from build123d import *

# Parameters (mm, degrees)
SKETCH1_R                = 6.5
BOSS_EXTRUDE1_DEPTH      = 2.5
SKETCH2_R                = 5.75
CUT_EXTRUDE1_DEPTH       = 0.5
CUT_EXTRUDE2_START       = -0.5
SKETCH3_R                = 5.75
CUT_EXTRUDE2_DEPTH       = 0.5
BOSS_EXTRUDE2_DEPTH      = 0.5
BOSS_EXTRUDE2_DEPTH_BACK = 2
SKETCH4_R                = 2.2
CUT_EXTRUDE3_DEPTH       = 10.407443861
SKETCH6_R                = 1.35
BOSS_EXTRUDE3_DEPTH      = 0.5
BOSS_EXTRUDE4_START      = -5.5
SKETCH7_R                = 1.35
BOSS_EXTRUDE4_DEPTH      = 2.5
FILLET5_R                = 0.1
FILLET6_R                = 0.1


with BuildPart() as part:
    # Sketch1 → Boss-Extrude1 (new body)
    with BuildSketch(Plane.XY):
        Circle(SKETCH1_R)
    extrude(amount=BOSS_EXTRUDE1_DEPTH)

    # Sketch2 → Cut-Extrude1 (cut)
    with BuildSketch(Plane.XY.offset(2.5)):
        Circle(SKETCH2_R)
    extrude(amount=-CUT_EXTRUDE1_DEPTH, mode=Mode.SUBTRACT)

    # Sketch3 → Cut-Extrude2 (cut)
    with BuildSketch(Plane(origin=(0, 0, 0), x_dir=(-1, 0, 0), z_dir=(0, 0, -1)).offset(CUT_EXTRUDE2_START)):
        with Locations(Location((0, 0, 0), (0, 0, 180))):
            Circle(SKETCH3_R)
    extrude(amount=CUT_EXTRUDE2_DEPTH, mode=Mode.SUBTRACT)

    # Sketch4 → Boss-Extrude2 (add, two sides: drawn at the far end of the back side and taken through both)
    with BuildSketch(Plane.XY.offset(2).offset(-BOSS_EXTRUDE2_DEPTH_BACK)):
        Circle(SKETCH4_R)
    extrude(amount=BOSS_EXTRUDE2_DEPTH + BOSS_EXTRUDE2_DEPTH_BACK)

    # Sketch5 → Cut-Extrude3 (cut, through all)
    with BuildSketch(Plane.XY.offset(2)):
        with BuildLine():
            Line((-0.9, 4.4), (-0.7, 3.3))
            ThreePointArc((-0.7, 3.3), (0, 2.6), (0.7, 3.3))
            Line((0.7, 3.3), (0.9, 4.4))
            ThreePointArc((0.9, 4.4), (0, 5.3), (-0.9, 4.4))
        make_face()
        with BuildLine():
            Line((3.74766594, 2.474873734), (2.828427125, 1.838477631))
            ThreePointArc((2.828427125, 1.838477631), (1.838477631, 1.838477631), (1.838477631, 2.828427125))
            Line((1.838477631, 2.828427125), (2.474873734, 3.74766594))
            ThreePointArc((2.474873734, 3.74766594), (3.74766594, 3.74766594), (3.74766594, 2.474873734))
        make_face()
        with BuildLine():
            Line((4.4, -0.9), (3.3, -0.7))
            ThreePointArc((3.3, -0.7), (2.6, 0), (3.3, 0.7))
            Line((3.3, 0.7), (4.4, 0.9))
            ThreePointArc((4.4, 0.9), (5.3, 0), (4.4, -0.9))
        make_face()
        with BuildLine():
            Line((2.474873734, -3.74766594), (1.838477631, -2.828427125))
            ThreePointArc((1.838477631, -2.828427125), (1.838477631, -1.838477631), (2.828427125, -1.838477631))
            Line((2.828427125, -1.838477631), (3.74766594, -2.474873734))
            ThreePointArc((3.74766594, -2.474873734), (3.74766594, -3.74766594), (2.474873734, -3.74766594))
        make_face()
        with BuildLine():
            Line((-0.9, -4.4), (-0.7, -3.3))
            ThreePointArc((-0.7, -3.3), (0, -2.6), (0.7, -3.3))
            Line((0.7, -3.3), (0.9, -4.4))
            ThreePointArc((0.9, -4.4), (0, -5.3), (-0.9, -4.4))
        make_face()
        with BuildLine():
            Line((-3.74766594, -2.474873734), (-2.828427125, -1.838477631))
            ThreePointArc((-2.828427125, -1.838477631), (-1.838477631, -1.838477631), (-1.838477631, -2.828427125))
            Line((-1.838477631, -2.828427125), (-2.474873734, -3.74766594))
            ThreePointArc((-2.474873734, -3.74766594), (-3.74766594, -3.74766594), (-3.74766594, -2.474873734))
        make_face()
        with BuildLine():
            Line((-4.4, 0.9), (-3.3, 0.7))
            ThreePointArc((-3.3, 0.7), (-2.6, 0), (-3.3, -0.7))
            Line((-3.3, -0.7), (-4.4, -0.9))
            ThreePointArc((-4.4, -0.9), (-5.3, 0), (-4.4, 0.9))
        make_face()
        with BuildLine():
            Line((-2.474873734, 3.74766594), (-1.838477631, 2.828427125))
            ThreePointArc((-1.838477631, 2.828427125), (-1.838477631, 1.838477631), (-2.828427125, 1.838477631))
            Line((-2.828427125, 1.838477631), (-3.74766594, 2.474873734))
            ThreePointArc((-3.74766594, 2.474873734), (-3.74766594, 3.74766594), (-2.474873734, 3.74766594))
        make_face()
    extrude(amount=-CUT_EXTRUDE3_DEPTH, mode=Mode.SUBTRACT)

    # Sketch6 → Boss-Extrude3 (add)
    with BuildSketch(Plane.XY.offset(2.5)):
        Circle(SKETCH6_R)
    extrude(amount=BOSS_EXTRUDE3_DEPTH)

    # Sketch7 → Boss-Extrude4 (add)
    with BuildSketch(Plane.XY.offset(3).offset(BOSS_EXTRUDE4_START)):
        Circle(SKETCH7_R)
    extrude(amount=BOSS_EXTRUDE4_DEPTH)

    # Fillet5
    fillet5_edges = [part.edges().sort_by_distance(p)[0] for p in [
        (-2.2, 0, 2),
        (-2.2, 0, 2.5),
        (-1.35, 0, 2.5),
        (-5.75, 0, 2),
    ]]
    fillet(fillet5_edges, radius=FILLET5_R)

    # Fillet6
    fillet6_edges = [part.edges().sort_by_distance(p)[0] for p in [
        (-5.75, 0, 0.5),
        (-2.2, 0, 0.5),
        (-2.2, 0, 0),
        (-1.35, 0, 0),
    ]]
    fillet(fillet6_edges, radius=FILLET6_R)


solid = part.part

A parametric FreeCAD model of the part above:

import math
import FreeCAD as App
import Part
import Sketcher
from FreeCAD import Vector


def edges_at(feature, points):
    """Names of the edges that pass closest to the given points."""
    edges = feature.Shape.Edges
    near = lambda p: min(range(len(edges)), key=lambda i: edges[i].distToShape(Part.Vertex(*p))[0])
    return sorted({f"Edge{near(p) + 1}" for p in points})

doc = App.newDocument("Part")
body = doc.addObject("PartDesign::Body", "Body")

# Sketch on XY plane
sketch1 = body.newObject("Sketcher::SketchObject", "Sketch")
sketch1.AttachmentSupport = (doc.getObject("XY_Plane"), [""])
sketch1.MapMode = "FlatFace"
sketch1.addGeometry(Part.Circle(Vector(0, 0, 0), Vector(0, 0, 1), 6), False)
sketch1.addConstraint(Sketcher.Constraint("Coincident", 0, 3, -1, 1))
sketch1.addConstraint(Sketcher.Constraint("Diameter", 0, 13.0))
pad1 = body.newObject("PartDesign::Pad", "Pad")
pad1.Profile = sketch1
pad1.Length = 2.5

# Sketch on XY plane
sketch2 = body.newObject("Sketcher::SketchObject", "Sketch001")
sketch2.AttachmentSupport = (doc.getObject("XY_Plane"), [""])
sketch2.MapMode = "FlatFace"
sketch2.AttachmentOffset = App.Placement(Vector(0, 0, 2.5), App.Rotation())
sketch2.addGeometry(Part.Circle(Vector(0, 0, 0), Vector(0, 0, 1), 6), False)
sketch2.addConstraint(Sketcher.Constraint("Coincident", 0, 3, -1, 1))
sketch2.addConstraint(Sketcher.Constraint("Diameter", 0, 11.5))
pocket1 = body.newObject("PartDesign::Pocket", "Pocket")
pocket1.Profile = sketch2
pocket1.Length = 0.5

# Sketch on XY plane
sketch3 = body.newObject("Sketcher::SketchObject", "Sketch002")
sketch3.AttachmentSupport = (doc.getObject("XY_Plane"), [""])
sketch3.MapMode = "FlatFace"
sketch3.AttachmentOffset = App.Placement(Vector(0, 0, 0.5), App.Rotation())
sketch3.addGeometry(Part.Circle(Vector(0, 0, 0), Vector(0, 0, 1), 6), False)
sketch3.addConstraint(Sketcher.Constraint("Coincident", 0, 3, -1, 1))
sketch3.addConstraint(Sketcher.Constraint("Diameter", 0, 11.5))
pocket2 = body.newObject("PartDesign::Pocket", "Pocket001")
pocket2.Profile = sketch3
pocket2.Length = 0.5

# Sketch on XY plane
sketch4 = body.newObject("Sketcher::SketchObject", "Sketch003")
sketch4.AttachmentSupport = (doc.getObject("XY_Plane"), [""])
sketch4.MapMode = "FlatFace"
sketch4.AttachmentOffset = App.Placement(Vector(0, 0, 2), App.Rotation())
sketch4.addGeometry(Part.Circle(Vector(0, 0, 0), Vector(0, 0, 1), 2.2), False)
sketch4.addConstraint(Sketcher.Constraint("Coincident", 0, 3, -1, 1))
sketch4.addConstraint(Sketcher.Constraint("Diameter", 0, 4.4))
pad2 = body.newObject("PartDesign::Pad", "Pad001")
pad2.Profile = sketch4
pad2.Type = "TwoLengths"
pad2.Length = 0.5
pad2.Length2 = 2

# Sketch on XY plane
sketch5 = body.newObject("Sketcher::SketchObject", "Sketch004")
sketch5.AttachmentSupport = (doc.getObject("XY_Plane"), [""])
sketch5.MapMode = "FlatFace"
sketch5.AttachmentOffset = App.Placement(Vector(0, 0, 2), App.Rotation())
sketch5.addGeometry(Part.LineSegment(Vector(-0.9, 4.4, 0), Vector(-0.7, 3.3, 0)), False)
sketch5.addGeometry(Part.ArcOfCircle(Part.Circle(Vector(0, 3.3, 0), Vector(0, 0, 1), 0.7), math.radians(180), math.radians(360)), False)
sketch5.addGeometry(Part.LineSegment(Vector(0.7, 3.3, 0), Vector(0.9, 4.4, 0)), False)
sketch5.addGeometry(Part.ArcOfCircle(Part.Circle(Vector(0, 4.4, 0), Vector(0, 0, 1), 0.9), math.radians(0), math.radians(180)), False)
sketch5.addGeometry(Part.LineSegment(Vector(2.8, 1.8, 0), Vector(3.7, 2.5, 0)), False)
sketch5.addGeometry(Part.ArcOfCircle(Part.Circle(Vector(3.1, 3.1, 0), Vector(0, 0, 1), 0.9), math.radians(-45), math.radians(135)), False)
sketch5.addGeometry(Part.LineSegment(Vector(2.5, 3.7, 0), Vector(1.8, 2.8, 0)), False)
sketch5.addGeometry(Part.ArcOfCircle(Part.Circle(Vector(2.3, 2.3, 0), Vector(0, 0, 1), 0.7), math.radians(135), math.radians(315)), False)
sketch5.addGeometry(Part.LineSegment(Vector(3.3, -0.7, 0), Vector(4.4, -0.9, 0)), False)
sketch5.addGeometry(Part.ArcOfCircle(Part.Circle(Vector(4.4, 0, 0), Vector(0, 0, 1), 0.9), math.radians(-90), math.radians(90)), False)
sketch5.addGeometry(Part.LineSegment(Vector(4.4, 0.9, 0), Vector(3.3, 0.7, 0)), False)
sketch5.addGeometry(Part.ArcOfCircle(Part.Circle(Vector(3.3, 0, 0), Vector(0, 0, 1), 0.7), math.radians(90), math.radians(270)), False)
sketch5.addGeometry(Part.LineSegment(Vector(1.8, -2.8, 0), Vector(2.5, -3.7, 0)), False)
sketch5.addGeometry(Part.ArcOfCircle(Part.Circle(Vector(3.1, -3.1, 0), Vector(0, 0, 1), 0.9), math.radians(-135), math.radians(45)), False)
sketch5.addGeometry(Part.LineSegment(Vector(3.7, -2.5, 0), Vector(2.8, -1.8, 0)), False)
sketch5.addGeometry(Part.ArcOfCircle(Part.Circle(Vector(2.3, -2.3, 0), Vector(0, 0, 1), 0.7), math.radians(45), math.radians(225)), False)
sketch5.addGeometry(Part.LineSegment(Vector(-0.7, -3.3, 0), Vector(-0.9, -4.4, 0)), False)
sketch5.addGeometry(Part.ArcOfCircle(Part.Circle(Vector(0, -4.4, 0), Vector(0, 0, 1), 0.9), math.radians(180), math.radians(360)), False)
sketch5.addGeometry(Part.LineSegment(Vector(0.9, -4.4, 0), Vector(0.7, -3.3, 0)), False)
sketch5.addGeometry(Part.ArcOfCircle(Part.Circle(Vector(0, -3.3, 0), Vector(0, 0, 1), 0.7), math.radians(0), math.radians(180)), False)
sketch5.addGeometry(Part.LineSegment(Vector(-2.8, -1.8, 0), Vector(-3.7, -2.5, 0)), False)
sketch5.addGeometry(Part.ArcOfCircle(Part.Circle(Vector(-3.1, -3.1, 0), Vector(0, 0, 1), 0.9), math.radians(135), math.radians(315)), False)
sketch5.addGeometry(Part.LineSegment(Vector(-2.5, -3.7, 0), Vector(-1.8, -2.8, 0)), False)
sketch5.addGeometry(Part.ArcOfCircle(Part.Circle(Vector(-2.3, -2.3, 0), Vector(0, 0, 1), 0.7), math.radians(-45), math.radians(135)), False)
sketch5.addGeometry(Part.LineSegment(Vector(-3.3, 0.7, 0), Vector(-4.4, 0.9, 0)), False)
sketch5.addGeometry(Part.ArcOfCircle(Part.Circle(Vector(-4.4, 0, 0), Vector(0, 0, 1), 0.9), math.radians(90), math.radians(270)), False)
sketch5.addGeometry(Part.LineSegment(Vector(-4.4, -0.9, 0), Vector(-3.3, -0.7, 0)), False)
sketch5.addGeometry(Part.ArcOfCircle(Part.Circle(Vector(-3.3, 0, 0), Vector(0, 0, 1), 0.7), math.radians(-90), math.radians(90)), False)
sketch5.addGeometry(Part.LineSegment(Vector(-1.8, 2.8, 0), Vector(-2.5, 3.7, 0)), False)
sketch5.addGeometry(Part.ArcOfCircle(Part.Circle(Vector(-3.1, 3.1, 0), Vector(0, 0, 1), 0.9), math.radians(45), math.radians(225)), False)
sketch5.addGeometry(Part.LineSegment(Vector(-3.7, 2.5, 0), Vector(-2.8, 1.8, 0)), False)
sketch5.addGeometry(Part.ArcOfCircle(Part.Circle(Vector(-2.3, 2.3, 0), Vector(0, 0, 1), 0.7), math.radians(-135), math.radians(45)), False)
sketch5.addConstraint(Sketcher.Constraint("Coincident", 0, 2, 1, 1))
sketch5.addConstraint(Sketcher.Constraint("Coincident", 1, 2, 2, 1))
sketch5.addConstraint(Sketcher.Constraint("Coincident", 2, 2, 3, 1))
sketch5.addConstraint(Sketcher.Constraint("Coincident", 3, 2, 0, 1))
sketch5.addConstraint(Sketcher.Constraint("Coincident", 4, 2, 5, 1))
sketch5.addConstraint(Sketcher.Constraint("Coincident", 5, 2, 6, 1))
sketch5.addConstraint(Sketcher.Constraint("Coincident", 6, 2, 7, 1))
sketch5.addConstraint(Sketcher.Constraint("Coincident", 7, 2, 4, 1))
sketch5.addConstraint(Sketcher.Constraint("Coincident", 8, 2, 9, 1))
sketch5.addConstraint(Sketcher.Constraint("Coincident", 9, 2, 10, 1))
sketch5.addConstraint(Sketcher.Constraint("Coincident", 10, 2, 11, 1))
sketch5.addConstraint(Sketcher.Constraint("Coincident", 11, 2, 8, 1))
sketch5.addConstraint(Sketcher.Constraint("Coincident", 12, 2, 13, 1))
sketch5.addConstraint(Sketcher.Constraint("Coincident", 13, 2, 14, 1))
sketch5.addConstraint(Sketcher.Constraint("Coincident", 14, 2, 15, 1))
sketch5.addConstraint(Sketcher.Constraint("Coincident", 15, 2, 12, 1))
sketch5.addConstraint(Sketcher.Constraint("Coincident", 16, 2, 17, 1))
sketch5.addConstraint(Sketcher.Constraint("Coincident", 17, 2, 18, 1))
sketch5.addConstraint(Sketcher.Constraint("Coincident", 18, 2, 19, 1))
sketch5.addConstraint(Sketcher.Constraint("Coincident", 19, 2, 16, 1))
sketch5.addConstraint(Sketcher.Constraint("Coincident", 20, 2, 21, 1))
sketch5.addConstraint(Sketcher.Constraint("Coincident", 21, 2, 22, 1))
sketch5.addConstraint(Sketcher.Constraint("Coincident", 22, 2, 23, 1))
sketch5.addConstraint(Sketcher.Constraint("Coincident", 23, 2, 20, 1))
sketch5.addConstraint(Sketcher.Constraint("Coincident", 24, 2, 25, 1))
sketch5.addConstraint(Sketcher.Constraint("Coincident", 25, 2, 26, 1))
sketch5.addConstraint(Sketcher.Constraint("Coincident", 26, 2, 27, 1))
sketch5.addConstraint(Sketcher.Constraint("Coincident", 27, 2, 24, 1))
sketch5.addConstraint(Sketcher.Constraint("Coincident", 28, 2, 29, 1))
sketch5.addConstraint(Sketcher.Constraint("Coincident", 29, 2, 30, 1))
sketch5.addConstraint(Sketcher.Constraint("Coincident", 30, 2, 31, 1))
sketch5.addConstraint(Sketcher.Constraint("Coincident", 31, 2, 28, 1))
sketch5.addConstraint(Sketcher.Constraint("Equal", 3, 5))
sketch5.addConstraint(Sketcher.Constraint("Equal", 1, 7))
sketch5.addConstraint(Sketcher.Constraint("Equal", 5, 9))
sketch5.addConstraint(Sketcher.Constraint("Equal", 7, 11))
sketch5.addConstraint(Sketcher.Constraint("Equal", 9, 13))
sketch5.addConstraint(Sketcher.Constraint("Equal", 11, 15))
sketch5.addConstraint(Sketcher.Constraint("Equal", 13, 17))
sketch5.addConstraint(Sketcher.Constraint("Equal", 15, 19))
sketch5.addConstraint(Sketcher.Constraint("Equal", 17, 21))
sketch5.addConstraint(Sketcher.Constraint("Equal", 19, 23))
sketch5.addConstraint(Sketcher.Constraint("Equal", 21, 25))
sketch5.addConstraint(Sketcher.Constraint("Equal", 23, 27))
sketch5.addConstraint(Sketcher.Constraint("Equal", 25, 29))
sketch5.addConstraint(Sketcher.Constraint("Equal", 27, 31))
sketch5.addConstraint(Sketcher.Constraint("Symmetric", 3, 3, 17, 3, -1, 1))
sketch5.addConstraint(Sketcher.Constraint("Symmetric", 1, 3, 19, 3, -1, 1))
sketch5.addConstraint(Sketcher.Constraint("Symmetric", 5, 3, 21, 3, -1, 1))
sketch5.addConstraint(Sketcher.Constraint("Symmetric", 7, 3, 23, 3, -1, 1))
sketch5.addConstraint(Sketcher.Constraint("Symmetric", 9, 3, 25, 3, -1, 1))
sketch5.addConstraint(Sketcher.Constraint("Symmetric", 11, 3, 27, 3, -1, 1))
sketch5.addConstraint(Sketcher.Constraint("Symmetric", 13, 3, 29, 3, -1, 1))
sketch5.addConstraint(Sketcher.Constraint("Symmetric", 15, 3, 31, 3, -1, 1))
sketch5.addConstraint(Sketcher.Constraint("Symmetric", 13, 3, 21, 3, -2))
sketch5.addConstraint(Sketcher.Constraint("Symmetric", 15, 3, 23, 3, -2))
sketch5.addConstraint(Sketcher.Constraint("Symmetric", 0, 2, 1, 2, -2))
sketch5.addConstraint(Sketcher.Constraint("Symmetric", 2, 2, 3, 2, -2))
sketch5.addConstraint(Sketcher.Constraint("Symmetric", 9, 2, 24, 2, -2))
sketch5.addConstraint(Sketcher.Constraint("Symmetric", 11, 2, 26, 2, -2))
sketch5.addConstraint(Sketcher.Constraint("Perpendicular", 2, 8))
sketch5.addConstraint(Sketcher.Constraint("Perpendicular", 0, 10))
sketch5.addConstraint(Sketcher.Constraint("Perpendicular", 4, 12))
sketch5.addConstraint(Sketcher.Constraint("Perpendicular", 6, 14))
sketch5.addConstraint(Sketcher.Constraint("Perpendicular", 8, 16))
sketch5.addConstraint(Sketcher.Constraint("Perpendicular", 10, 18))
sketch5.addConstraint(Sketcher.Constraint("Perpendicular", 12, 20))
sketch5.addConstraint(Sketcher.Constraint("Perpendicular", 14, 22))
sketch5.addConstraint(Sketcher.Constraint("Perpendicular", 16, 24))
sketch5.addConstraint(Sketcher.Constraint("Perpendicular", 18, 26))
sketch5.addConstraint(Sketcher.Constraint("Perpendicular", 20, 28))
sketch5.addConstraint(Sketcher.Constraint("Perpendicular", 22, 30))
sketch5.addConstraint(Sketcher.Constraint("Horizontal", 1, 3, 0, 2))
sketch5.addConstraint(Sketcher.Constraint("Horizontal", 3, 3, 2, 2))
sketch5.addConstraint(Sketcher.Constraint("Horizontal", 17, 3, 16, 2))
sketch5.addConstraint(Sketcher.Constraint("Horizontal", 16, 2, 17, 2))
sketch5.addConstraint(Sketcher.Constraint("Horizontal", 13, 2, 20, 2))
sketch5.addConstraint(Sketcher.Constraint("Horizontal", 12, 2, 21, 2))
sketch5.addConstraint(Sketcher.Constraint("Horizontal", 15, 2, 22, 2))
sketch5.addConstraint(Sketcher.Constraint("Horizontal", 5, 2, 28, 2))
sketch5.addConstraint(Sketcher.Constraint("Horizontal", 4, 2, 29, 2))
sketch5.addConstraint(Sketcher.Constraint("Vertical", 9, 3, 8, 2))
sketch5.addConstraint(Sketcher.Constraint("Vertical", 8, 2, 9, 2))
sketch5.addConstraint(Sketcher.Constraint("Vertical", 11, 3, 10, 2))
sketch5.addConstraint(Sketcher.Constraint("Vertical", 5, 2, 12, 2))
sketch5.addConstraint(Sketcher.Constraint("Vertical", 4, 2, 13, 2))
sketch5.addConstraint(Sketcher.Constraint("Equal", 2, 4))
sketch5.addConstraint(Sketcher.Constraint("Equal", 4, 6))
sketch5.addConstraint(Sketcher.Constraint("Radius", 1, 0.7))
sketch5.addConstraint(Sketcher.Constraint("Radius", 3, 0.9))
sketch5.addConstraint(Sketcher.Constraint("DistanceY", -1, 1, 1, 3, 3.3))
sketch5.addConstraint(Sketcher.Constraint("DistanceY", -1, 1, 3, 3, 4.4))
sketch5.addConstraint(Sketcher.Constraint("DistanceX", -1, 1, 9, 3, 4.4))
sketch5.addConstraint(Sketcher.Constraint("DistanceX", -1, 1, 5, 3, 3.11127))
sketch5.addConstraint(Sketcher.Constraint("DistanceY", -1, 1, 5, 3, 3.11127))
sketch5.addConstraint(Sketcher.Constraint("DistanceY", 7, 3, 4, 2, 0.141421))
sketch5.addConstraint(Sketcher.Constraint("DistanceX", 7, 3, 5, 2, 0.141421))
sketch5.addConstraint(Sketcher.Constraint("DistanceX", -1, 1, 7, 3, 2.333452))
pocket3 = body.newObject("PartDesign::Pocket", "Pocket002")
pocket3.Profile = sketch5
pocket3.Type = "ThroughAll"

# Sketch on XY plane
sketch6 = body.newObject("Sketcher::SketchObject", "Sketch005")
sketch6.AttachmentSupport = (doc.getObject("XY_Plane"), [""])
sketch6.MapMode = "FlatFace"
sketch6.AttachmentOffset = App.Placement(Vector(0, 0, 2.5), App.Rotation())
sketch6.addGeometry(Part.Circle(Vector(0, 0, 0), Vector(0, 0, 1), 1.4), False)
sketch6.addConstraint(Sketcher.Constraint("Coincident", 0, 3, -1, 1))
sketch6.addConstraint(Sketcher.Constraint("Diameter", 0, 2.7))
pad3 = body.newObject("PartDesign::Pad", "Pad002")
pad3.Profile = sketch6
pad3.Length = 0.5

# Sketch on XY plane
sketch7 = body.newObject("Sketcher::SketchObject", "Sketch006")
sketch7.AttachmentSupport = (doc.getObject("XY_Plane"), [""])
sketch7.MapMode = "FlatFace"
sketch7.AttachmentOffset = App.Placement(Vector(0, 0, -2.5), App.Rotation())
sketch7.addGeometry(Part.Circle(Vector(0, 0, 0), Vector(0, 0, 1), 1.4), False)
sketch7.addConstraint(Sketcher.Constraint("Coincident", 0, 3, -1, 1))
sketch7.addConstraint(Sketcher.Constraint("Diameter", 0, 2.7))
pad4 = body.newObject("PartDesign::Pad", "Pad003")
pad4.Profile = sketch7
pad4.Length = 2.5
doc.recompute()

fillet = body.newObject("PartDesign::Fillet", "Fillet")
fillet.Base = (pad4, edges_at(pad4, [
    (-2.2, 0, 2),
    (-2.2, 0, 2.5),
    (-1.35, 0, 2.5),
    (-5.75, 0, 2),
]))
fillet.Radius = 0.1
doc.recompute()

fillet2 = body.newObject("PartDesign::Fillet", "Fillet001")
fillet2.Base = (fillet, edges_at(fillet, [
    (-5.75, 0, 0.5),
    (-2.2, 0, 0.5),
    (-2.2, 0, 0),
    (-1.35, 0, 0),
]))
fillet2.Radius = 0.1

doc.recompute()
